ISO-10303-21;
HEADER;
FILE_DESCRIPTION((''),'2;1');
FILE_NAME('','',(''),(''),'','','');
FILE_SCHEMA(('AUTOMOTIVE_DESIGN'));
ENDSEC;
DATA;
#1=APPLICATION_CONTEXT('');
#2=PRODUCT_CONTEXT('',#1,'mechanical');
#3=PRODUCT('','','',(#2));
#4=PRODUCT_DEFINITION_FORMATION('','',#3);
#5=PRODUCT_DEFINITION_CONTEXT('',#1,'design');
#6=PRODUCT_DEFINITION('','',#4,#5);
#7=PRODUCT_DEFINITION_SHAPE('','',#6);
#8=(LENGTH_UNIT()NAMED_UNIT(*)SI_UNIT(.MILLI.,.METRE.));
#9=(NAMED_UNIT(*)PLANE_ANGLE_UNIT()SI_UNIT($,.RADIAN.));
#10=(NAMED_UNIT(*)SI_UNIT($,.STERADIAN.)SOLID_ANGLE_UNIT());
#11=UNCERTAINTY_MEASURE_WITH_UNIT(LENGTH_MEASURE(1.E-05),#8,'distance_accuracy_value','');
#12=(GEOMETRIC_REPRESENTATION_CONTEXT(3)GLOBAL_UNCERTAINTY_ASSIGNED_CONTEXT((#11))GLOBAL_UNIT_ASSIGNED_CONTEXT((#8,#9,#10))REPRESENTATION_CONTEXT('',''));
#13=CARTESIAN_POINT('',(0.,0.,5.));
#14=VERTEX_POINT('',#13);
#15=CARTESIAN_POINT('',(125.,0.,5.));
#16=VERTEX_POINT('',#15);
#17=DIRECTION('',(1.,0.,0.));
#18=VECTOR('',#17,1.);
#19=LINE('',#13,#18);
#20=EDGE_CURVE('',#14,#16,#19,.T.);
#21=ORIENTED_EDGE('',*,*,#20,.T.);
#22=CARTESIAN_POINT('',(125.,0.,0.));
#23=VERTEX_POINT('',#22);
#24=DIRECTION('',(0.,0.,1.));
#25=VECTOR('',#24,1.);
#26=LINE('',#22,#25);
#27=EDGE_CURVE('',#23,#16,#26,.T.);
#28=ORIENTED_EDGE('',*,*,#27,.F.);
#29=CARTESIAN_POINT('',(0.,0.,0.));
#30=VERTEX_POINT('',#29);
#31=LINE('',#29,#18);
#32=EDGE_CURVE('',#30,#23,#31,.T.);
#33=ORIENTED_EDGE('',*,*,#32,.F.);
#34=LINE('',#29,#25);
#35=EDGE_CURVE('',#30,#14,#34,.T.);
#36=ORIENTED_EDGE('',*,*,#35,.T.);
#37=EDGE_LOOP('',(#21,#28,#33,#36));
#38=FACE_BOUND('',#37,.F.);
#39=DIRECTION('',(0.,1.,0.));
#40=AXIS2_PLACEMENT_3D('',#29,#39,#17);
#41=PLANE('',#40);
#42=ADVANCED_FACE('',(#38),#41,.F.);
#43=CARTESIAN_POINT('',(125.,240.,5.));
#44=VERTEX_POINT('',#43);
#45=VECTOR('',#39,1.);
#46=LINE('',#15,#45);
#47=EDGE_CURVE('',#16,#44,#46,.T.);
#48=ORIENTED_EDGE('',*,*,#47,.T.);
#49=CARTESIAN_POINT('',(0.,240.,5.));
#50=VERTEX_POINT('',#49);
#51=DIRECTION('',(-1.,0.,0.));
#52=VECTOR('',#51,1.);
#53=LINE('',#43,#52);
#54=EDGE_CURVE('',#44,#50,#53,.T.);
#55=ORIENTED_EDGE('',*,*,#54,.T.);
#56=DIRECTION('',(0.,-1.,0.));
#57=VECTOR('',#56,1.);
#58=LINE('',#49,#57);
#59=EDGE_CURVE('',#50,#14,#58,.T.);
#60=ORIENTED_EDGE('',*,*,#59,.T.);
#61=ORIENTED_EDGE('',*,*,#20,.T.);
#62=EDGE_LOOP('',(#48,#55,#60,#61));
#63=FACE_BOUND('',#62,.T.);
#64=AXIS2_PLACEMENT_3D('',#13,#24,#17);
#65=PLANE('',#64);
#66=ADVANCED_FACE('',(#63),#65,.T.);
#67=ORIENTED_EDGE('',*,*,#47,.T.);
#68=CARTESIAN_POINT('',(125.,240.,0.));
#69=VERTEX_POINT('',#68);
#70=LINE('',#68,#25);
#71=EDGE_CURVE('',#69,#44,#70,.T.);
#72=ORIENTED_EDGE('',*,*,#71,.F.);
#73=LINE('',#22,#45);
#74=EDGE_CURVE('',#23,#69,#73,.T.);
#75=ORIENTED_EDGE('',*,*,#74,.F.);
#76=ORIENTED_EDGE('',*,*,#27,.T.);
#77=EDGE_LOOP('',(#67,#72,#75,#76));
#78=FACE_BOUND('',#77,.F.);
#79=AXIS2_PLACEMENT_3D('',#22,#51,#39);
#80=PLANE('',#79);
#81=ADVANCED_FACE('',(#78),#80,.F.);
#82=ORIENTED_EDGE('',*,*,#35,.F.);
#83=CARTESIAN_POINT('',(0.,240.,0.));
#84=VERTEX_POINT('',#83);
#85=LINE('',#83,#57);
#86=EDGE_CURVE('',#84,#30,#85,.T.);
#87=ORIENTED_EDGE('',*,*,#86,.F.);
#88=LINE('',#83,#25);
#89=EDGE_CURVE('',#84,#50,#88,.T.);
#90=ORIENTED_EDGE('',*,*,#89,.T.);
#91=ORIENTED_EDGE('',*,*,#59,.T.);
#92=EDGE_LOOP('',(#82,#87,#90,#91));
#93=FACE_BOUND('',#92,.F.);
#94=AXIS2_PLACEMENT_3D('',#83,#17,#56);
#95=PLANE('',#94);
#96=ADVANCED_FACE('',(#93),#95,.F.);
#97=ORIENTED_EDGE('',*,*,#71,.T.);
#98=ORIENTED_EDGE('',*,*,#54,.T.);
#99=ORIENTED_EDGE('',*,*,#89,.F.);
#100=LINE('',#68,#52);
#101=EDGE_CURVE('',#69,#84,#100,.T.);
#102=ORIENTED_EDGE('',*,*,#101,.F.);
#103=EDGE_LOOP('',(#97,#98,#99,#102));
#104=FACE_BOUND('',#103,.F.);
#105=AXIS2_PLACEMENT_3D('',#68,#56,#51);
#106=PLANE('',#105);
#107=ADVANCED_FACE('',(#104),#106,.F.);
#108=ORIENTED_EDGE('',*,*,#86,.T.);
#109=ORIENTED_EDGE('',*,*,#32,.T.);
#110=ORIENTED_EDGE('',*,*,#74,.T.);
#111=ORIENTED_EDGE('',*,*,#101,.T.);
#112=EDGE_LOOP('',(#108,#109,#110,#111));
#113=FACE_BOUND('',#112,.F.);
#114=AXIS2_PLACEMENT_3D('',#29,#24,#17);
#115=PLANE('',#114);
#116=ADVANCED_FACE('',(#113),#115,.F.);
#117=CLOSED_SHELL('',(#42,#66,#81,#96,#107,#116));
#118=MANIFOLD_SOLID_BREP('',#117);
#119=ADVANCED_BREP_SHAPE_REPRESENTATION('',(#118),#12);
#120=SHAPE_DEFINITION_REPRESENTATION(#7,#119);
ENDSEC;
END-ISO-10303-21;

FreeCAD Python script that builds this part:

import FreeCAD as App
import Part
import Sketcher
Q = App.Units.Quantity

doc = App.newDocument("Part")
params = doc.addObject("Spreadsheet::Sheet", "Params")
for row, (alias, value) in enumerate([
    ("sketch1_width", "125 mm"),
    ("sketch1_height", "240 mm"),
    ("pad1_length", "5 mm"),
], start=1):
    params.set(f"A{row}", alias)
    params.set(f"B{row}", "=" + value)
    params.setAlias(f"B{row}", alias)

body = doc.addObject("PartDesign::Body", "Body")

sketch1 = body.newObject("Sketcher::SketchObject", "Sketch")
sketch1.AttachmentSupport = (doc.getObject("XY_Plane"), [""])
sketch1.MapMode = "FlatFace"
sketch1.addGeometry([
    Part.LineSegment(App.Vector(0, 240, 0), App.Vector(0, 0, 0)),
    Part.LineSegment(App.Vector(0, 0, 0), App.Vector(125, 0, 0)),
    Part.LineSegment(App.Vector(125, 0, 0), App.Vector(125, 240, 0)),
    Part.LineSegment(App.Vector(125, 240, 0), App.Vector(0, 240, 0)),
], False)
sketch1.addConstraint([
    Sketcher.Constraint("Coincident", 0, 2, 1, 1),
    Sketcher.Constraint("Coincident", 1, 2, 2, 1),
    Sketcher.Constraint("Coincident", 2, 2, 3, 1),
    Sketcher.Constraint("Coincident", 3, 2, 0, 1),
    Sketcher.Constraint("Vertical", 0),
    Sketcher.Constraint("Horizontal", 1),
    Sketcher.Constraint("Vertical", 2),
    Sketcher.Constraint("Horizontal", 3),
    Sketcher.Constraint("Coincident", 0, 2, -1, 1),
    Sketcher.Constraint("DistanceX", 1, 1, 1, 2, Q("125 mm")),
    Sketcher.Constraint("DistanceY", 0, 2, 0, 1, Q("240 mm")),
])
sketch1.setExpression("Constraints[9]", "Params.sketch1_width")
sketch1.setExpression("Constraints[10]", "Params.sketch1_height")
pad1 = body.newObject("PartDesign::Pad", "Pad")
pad1.Profile = sketch1
pad1.setExpression("Length", "Params.pad1_length")

doc.recompute()
